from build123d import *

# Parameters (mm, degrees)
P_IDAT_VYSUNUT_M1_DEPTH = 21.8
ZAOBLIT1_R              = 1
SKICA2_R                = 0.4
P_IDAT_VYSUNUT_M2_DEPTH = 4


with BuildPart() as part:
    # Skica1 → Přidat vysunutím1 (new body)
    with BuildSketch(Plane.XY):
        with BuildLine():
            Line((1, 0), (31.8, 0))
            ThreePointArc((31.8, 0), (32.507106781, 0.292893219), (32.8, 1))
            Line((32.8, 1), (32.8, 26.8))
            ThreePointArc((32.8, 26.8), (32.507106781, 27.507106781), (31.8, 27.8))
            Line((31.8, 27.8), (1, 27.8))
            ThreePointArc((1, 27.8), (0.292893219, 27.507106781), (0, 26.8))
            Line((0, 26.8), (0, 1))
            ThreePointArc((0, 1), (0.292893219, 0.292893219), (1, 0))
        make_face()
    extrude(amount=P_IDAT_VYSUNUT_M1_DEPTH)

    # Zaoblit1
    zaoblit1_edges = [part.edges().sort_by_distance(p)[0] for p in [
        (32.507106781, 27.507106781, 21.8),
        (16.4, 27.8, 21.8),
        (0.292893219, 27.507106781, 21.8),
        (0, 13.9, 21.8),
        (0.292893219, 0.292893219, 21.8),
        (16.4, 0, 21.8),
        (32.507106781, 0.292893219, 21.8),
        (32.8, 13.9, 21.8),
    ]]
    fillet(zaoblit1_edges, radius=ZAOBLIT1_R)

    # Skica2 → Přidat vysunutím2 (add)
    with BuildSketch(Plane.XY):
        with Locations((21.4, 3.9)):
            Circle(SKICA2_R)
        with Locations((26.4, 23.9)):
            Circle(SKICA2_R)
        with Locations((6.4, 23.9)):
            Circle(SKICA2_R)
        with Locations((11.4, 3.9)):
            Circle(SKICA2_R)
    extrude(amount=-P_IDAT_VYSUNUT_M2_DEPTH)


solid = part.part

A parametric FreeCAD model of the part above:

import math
import FreeCAD as App
import Part
import Sketcher
Q = App.Units.Quantity


def edges_at(feature, points):
    """Names of the edges that pass closest to the given points."""
    edges = feature.Shape.Edges
    near = lambda p: min(range(len(edges)), key=lambda i: edges[i].distToShape(Part.Vertex(*p))[0])
    return sorted({f"Edge{near(p) + 1}" for p in points})

doc = App.newDocument("Part")
params = doc.addObject("Spreadsheet::Sheet", "Params")
for row, (alias, value) in enumerate([
    ("sketch1_radius", "1 mm"),
    ("sketch1_width", "30.8 mm"),
    ("sketch1_height", "25.8 mm"),
    ("pad1_length", "21.8 mm"),
    ("fillet_radius", "1 mm"),
    ("sketch2_diameter", "0.8 mm"),
    ("pad2_length", "4 mm"),
], start=1):
    params.set(f"A{row}", alias)
    params.set(f"B{row}", "=" + value)
    params.setAlias(f"B{row}", alias)

body = doc.addObject("PartDesign::Body", "Body")

# Sketch on XY plane
sketch1 = body.newObject("Sketcher::SketchObject", "Sketch")
sketch1.AttachmentSupport = (doc.getObject("XY_Plane"), [""])
sketch1.MapMode = "FlatFace"
sketch1.addGeometry([
    Part.LineSegment(App.Vector(1, 0, 0), App.Vector(31.8, 0, 0)),  # 0
    Part.ArcOfCircle(Part.Circle(App.Vector(31.8, 1, 0), App.Vector(0, 0, 1), 1), math.radians(-90), math.radians(0)),  # 1
    Part.LineSegment(App.Vector(32.8, 1, 0), App.Vector(32.8, 26.8, 0)),  # 2
    Part.ArcOfCircle(Part.Circle(App.Vector(31.8, 26.8, 0), App.Vector(0, 0, 1), 1), math.radians(0), math.radians(90)),  # 3
    Part.LineSegment(App.Vector(31.8, 27.8, 0), App.Vector(1, 27.8, 0)),  # 4
    Part.ArcOfCircle(Part.Circle(App.Vector(1, 26.8, 0), App.Vector(0, 0, 1), 1), math.radians(90), math.radians(180)),  # 5
    Part.LineSegment(App.Vector(0, 26.8, 0), App.Vector(0, 1, 0)),  # 6
    Part.ArcOfCircle(Part.Circle(App.Vector(1, 1, 0), App.Vector(0, 0, 1), 1), math.radians(-180), math.radians(-90)),  # 7
], False)
sketch1.addConstraint([
    Sketcher.Constraint("Tangent", 0, 2, 1, 1),
    Sketcher.Constraint("Tangent", 1, 2, 2, 1),
    Sketcher.Constraint("Tangent", 2, 2, 3, 1),
    Sketcher.Constraint("Tangent", 3, 2, 4, 1),
    Sketcher.Constraint("Tangent", 4, 2, 5, 1),
    Sketcher.Constraint("Tangent", 5, 2, 6, 1),
    Sketcher.Constraint("Tangent", 6, 2, 7, 1),
    Sketcher.Constraint("Tangent", 7, 2, 0, 1),
    Sketcher.Constraint("Horizontal", 0),
    Sketcher.Constraint("Vertical", 2),
    Sketcher.Constraint("Horizontal", 4),
    Sketcher.Constraint("Vertical", 6),
    Sketcher.Constraint("Equal", 1, 3),
    Sketcher.Constraint("Equal", 3, 5),
    Sketcher.Constraint("Equal", 5, 7),
    Sketcher.Constraint("PointOnObject", 0, 2, -1),
    Sketcher.Constraint("PointOnObject", 5, 2, -2),
    Sketcher.Constraint("Radius", 1, Q("1 mm")),
    Sketcher.Constraint("DistanceX", 0, 1, 0, 2, Q("30.8 mm")),
    Sketcher.Constraint("DistanceY", 2, 1, 2, 2, Q("25.8 mm")),
])
sketch1.setExpression("Constraints[17]", "Params.sketch1_radius")
sketch1.setExpression("Constraints[18]", "Params.sketch1_width")
sketch1.setExpression("Constraints[19]", "Params.sketch1_height")
pad1 = body.newObject("PartDesign::Pad", "Pad")
pad1.Profile = sketch1
pad1.setExpression("Length", "Params.pad1_length")
doc.recompute()

fillet = body.newObject("PartDesign::Fillet", "Fillet")
fillet.Base = (pad1, edges_at(pad1, [
    (32.507, 27.507, 21.8),
    (16.4, 27.8, 21.8),
    (0.293, 27.507, 21.8),
    (0, 13.9, 21.8),
    (0.293, 0.293, 21.8),
    (16.4, 0, 21.8),
    (32.507, 0.293, 21.8),
    (32.8, 13.9, 21.8),
]))
fillet.setExpression("Radius", "Params.fillet_radius")

# Sketch on XY plane
sketch2 = body.newObject("Sketcher::SketchObject", "Sketch001")
sketch2.AttachmentSupport = (doc.getObject("XY_Plane"), [""])
sketch2.MapMode = "FlatFace"
sketch2.addGeometry([
    Part.Circle(App.Vector(21.4, 3.9, 0), App.Vector(0, 0, 1), 0.4),
    Part.Circle(App.Vector(26.4, 23.9, 0), App.Vector(0, 0, 1), 0.4),
    Part.Circle(App.Vector(6.4, 23.9, 0), App.Vector(0, 0, 1), 0.4),
    Part.Circle(App.Vector(11.4, 3.9, 0), App.Vector(0, 0, 1), 0.4),
], False)
sketch2.addConstraint([
    Sketcher.Constraint("Equal", 0, 1),
    Sketcher.Constraint("Equal", 1, 2),
    Sketcher.Constraint("Equal", 2, 3),
    Sketcher.Constraint("Horizontal", 1, 3, 2, 3),
    Sketcher.Constraint("Horizontal", 0, 3, 3, 3),
    Sketcher.Constraint("Diameter", 0, Q("0.8 mm")),
    Sketcher.Constraint("DistanceX", 0, 3, 1, 3, Q("5 mm")),
    Sketcher.Constraint("DistanceY", 0, 3, 1, 3, Q("20 mm")),
    Sketcher.Constraint("DistanceX", 2, 3, 1, 3, Q("20 mm")),
    Sketcher.Constraint("DistanceX", 3, 3, 0, 3, Q("10 mm")),
    Sketcher.Constraint("DistanceX", -1, 1, 0, 3, Q("21.4 mm")),
    Sketcher.Constraint("DistanceY", -1, 1, 0, 3, Q("3.9 mm")),
])
sketch2.setExpression("Constraints[5]", "Params.sketch2_diameter")
pad2 = body.newObject("PartDesign::Pad", "Pad001")
pad2.Profile = sketch2
pad2.setExpression("Length", "Params.pad2_length")
pad2.Reversed = True

doc.recompute()
